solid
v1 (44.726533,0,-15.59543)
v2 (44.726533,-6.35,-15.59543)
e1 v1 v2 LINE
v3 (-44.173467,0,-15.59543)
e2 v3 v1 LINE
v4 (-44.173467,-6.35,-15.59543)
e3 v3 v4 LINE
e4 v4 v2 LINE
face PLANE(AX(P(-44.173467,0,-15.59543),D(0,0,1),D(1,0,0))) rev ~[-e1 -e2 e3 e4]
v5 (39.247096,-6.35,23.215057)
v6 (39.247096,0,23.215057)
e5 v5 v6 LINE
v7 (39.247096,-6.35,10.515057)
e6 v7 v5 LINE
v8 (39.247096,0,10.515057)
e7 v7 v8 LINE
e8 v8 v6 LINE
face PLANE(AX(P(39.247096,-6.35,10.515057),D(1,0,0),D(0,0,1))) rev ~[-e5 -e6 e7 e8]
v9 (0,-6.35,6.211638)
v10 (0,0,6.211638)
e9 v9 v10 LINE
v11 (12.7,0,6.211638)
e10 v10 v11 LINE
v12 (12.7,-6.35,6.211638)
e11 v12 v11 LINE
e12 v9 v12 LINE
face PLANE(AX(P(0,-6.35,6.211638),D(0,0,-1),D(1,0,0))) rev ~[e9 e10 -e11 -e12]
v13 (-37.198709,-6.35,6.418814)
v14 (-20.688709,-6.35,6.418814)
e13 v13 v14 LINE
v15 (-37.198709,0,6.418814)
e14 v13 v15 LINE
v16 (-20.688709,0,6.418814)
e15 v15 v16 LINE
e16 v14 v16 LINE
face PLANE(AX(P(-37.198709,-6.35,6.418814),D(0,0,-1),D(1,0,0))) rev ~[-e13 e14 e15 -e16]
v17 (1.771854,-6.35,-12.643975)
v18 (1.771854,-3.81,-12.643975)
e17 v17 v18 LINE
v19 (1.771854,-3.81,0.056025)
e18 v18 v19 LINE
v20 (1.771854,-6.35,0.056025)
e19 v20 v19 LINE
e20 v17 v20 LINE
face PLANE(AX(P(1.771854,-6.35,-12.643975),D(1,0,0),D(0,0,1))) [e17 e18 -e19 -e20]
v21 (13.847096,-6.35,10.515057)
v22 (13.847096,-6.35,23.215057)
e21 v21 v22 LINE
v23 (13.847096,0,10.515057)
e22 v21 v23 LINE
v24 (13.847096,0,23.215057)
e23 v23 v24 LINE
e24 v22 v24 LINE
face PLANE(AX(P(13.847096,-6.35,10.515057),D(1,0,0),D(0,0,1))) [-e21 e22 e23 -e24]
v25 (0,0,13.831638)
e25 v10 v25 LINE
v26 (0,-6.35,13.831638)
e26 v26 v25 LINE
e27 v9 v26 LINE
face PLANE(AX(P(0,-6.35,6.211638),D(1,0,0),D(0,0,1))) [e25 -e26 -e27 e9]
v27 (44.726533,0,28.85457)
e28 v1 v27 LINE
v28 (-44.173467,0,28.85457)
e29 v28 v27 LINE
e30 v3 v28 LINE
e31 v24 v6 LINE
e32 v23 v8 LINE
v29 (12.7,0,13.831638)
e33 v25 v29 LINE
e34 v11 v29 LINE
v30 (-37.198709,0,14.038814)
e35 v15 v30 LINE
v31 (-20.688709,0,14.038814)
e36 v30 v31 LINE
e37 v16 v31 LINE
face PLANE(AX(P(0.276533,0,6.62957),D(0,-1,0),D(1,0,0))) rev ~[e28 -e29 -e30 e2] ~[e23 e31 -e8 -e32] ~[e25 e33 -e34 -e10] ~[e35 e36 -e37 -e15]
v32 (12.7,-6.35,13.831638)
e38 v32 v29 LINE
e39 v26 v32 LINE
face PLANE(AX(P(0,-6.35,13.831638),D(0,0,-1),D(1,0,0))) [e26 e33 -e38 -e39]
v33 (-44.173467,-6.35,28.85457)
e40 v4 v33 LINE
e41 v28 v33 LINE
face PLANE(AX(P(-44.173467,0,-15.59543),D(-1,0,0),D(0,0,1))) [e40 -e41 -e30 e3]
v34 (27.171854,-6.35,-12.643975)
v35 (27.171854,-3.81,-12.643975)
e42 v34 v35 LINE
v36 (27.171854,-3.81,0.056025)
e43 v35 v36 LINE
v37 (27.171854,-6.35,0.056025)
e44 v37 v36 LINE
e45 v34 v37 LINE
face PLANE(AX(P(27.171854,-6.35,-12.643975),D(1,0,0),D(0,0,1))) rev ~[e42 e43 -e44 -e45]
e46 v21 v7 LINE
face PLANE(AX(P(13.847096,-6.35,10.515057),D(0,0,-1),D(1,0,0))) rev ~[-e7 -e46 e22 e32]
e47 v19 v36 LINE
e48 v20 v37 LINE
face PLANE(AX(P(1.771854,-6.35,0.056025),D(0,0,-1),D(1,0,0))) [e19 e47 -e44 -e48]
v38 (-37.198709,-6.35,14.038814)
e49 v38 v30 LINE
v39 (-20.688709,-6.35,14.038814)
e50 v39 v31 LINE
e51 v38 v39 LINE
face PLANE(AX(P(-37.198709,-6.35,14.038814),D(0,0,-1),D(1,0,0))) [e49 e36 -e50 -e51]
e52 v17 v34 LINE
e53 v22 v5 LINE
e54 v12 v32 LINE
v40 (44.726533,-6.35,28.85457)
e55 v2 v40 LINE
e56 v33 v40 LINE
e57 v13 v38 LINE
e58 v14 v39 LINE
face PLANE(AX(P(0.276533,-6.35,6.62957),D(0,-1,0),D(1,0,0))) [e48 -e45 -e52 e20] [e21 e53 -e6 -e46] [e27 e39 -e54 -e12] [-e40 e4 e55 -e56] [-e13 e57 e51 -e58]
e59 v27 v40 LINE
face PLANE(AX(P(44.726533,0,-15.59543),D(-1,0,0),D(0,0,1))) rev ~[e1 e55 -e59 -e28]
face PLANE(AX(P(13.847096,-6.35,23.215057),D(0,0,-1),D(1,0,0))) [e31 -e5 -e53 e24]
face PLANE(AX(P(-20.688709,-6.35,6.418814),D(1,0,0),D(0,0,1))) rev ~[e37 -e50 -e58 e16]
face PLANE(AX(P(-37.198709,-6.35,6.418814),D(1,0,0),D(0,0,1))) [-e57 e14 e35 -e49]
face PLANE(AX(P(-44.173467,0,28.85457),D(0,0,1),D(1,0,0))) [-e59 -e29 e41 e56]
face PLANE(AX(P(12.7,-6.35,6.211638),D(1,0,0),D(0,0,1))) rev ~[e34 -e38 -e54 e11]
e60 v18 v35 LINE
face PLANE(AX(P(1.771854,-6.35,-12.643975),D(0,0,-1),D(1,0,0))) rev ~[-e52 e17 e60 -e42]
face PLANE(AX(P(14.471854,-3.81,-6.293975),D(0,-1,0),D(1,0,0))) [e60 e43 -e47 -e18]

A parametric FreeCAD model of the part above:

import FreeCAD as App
import Part
import Sketcher
Q = App.Units.Quantity


def add_polygon(sketch, points):
    """Adds a closed chain of lines whose ends are joined by coincident constraints."""
    first, n = sketch.GeometryCount, len(points)
    for a, b in zip(points, points[1:] + points[:1]):
        sketch.addGeometry(Part.LineSegment(App.Vector(*a, 0), App.Vector(*b, 0)), False)
    for i in range(n):
        sketch.addConstraint(Sketcher.Constraint("Coincident", first + i, 2, first + (i + 1) % n, 1))

doc = App.newDocument("Part")
body = doc.addObject("PartDesign::Body", "Body")

sketch1 = doc.addObject("Sketcher::SketchObject", "Sketch")
body.addObject(sketch1)
sketch1.AttachmentSupport = (doc.XZ_Plane, [""])
sketch1.MapMode = "FlatFace"
add_polygon(sketch1, [(-44, 29), (-44, -16), (45, -16), (45, 29)])
sketch1.addConstraint(Sketcher.Constraint("Vertical", 0))
sketch1.addConstraint(Sketcher.Constraint("Horizontal", 1))
sketch1.addConstraint(Sketcher.Constraint("Vertical", 2))
sketch1.addConstraint(Sketcher.Constraint("Horizontal", 3))
sketch1.addConstraint(Sketcher.Constraint("DistanceX", 1, 1, 1, 2, Q("3.5 in")))
sketch1.addConstraint(Sketcher.Constraint("DistanceY", 0, 2, 0, 1, Q("1.75 in")))
sketch1.addConstraint(Sketcher.Constraint("DistanceY", 0, 2, -1, 1, 15.59543))
sketch1.addConstraint(Sketcher.Constraint("DistanceX", 0, 2, -1, 1, 44.173467))
pad1 = doc.addObject("PartDesign::Pad", "Pad")
body.addObject(pad1)
pad1.Profile = sketch1
pad1.Length = Q("0.25 in")

sketch2 = doc.addObject("Sketcher::SketchObject", "Sketch001")
body.addObject(sketch2)
sketch2.AttachmentSupport = (doc.XZ_Plane, [""])
sketch2.MapMode = "FlatFace"
sketch2.AttachmentOffset = App.Placement(App.Vector(0, 0, 0.25 * 25.4), App.Rotation())
add_polygon(sketch2, [(14, 23), (14, 11), (39, 11), (39, 23)])
sketch2.addConstraint(Sketcher.Constraint("Vertical", 0))
sketch2.addConstraint(Sketcher.Constraint("Horizontal", 1))
sketch2.addConstraint(Sketcher.Constraint("Vertical", 2))
sketch2.addConstraint(Sketcher.Constraint("Horizontal", 3))
sketch2.addConstraint(Sketcher.Constraint("DistanceX", 1, 1, 1, 2, Q("1 in")))
sketch2.addConstraint(Sketcher.Constraint("DistanceY", 0, 2, 0, 1, Q("0.5 in")))
sketch2.addConstraint(Sketcher.Constraint("DistanceX", -1, 1, 0, 2, 13.847096))
sketch2.addConstraint(Sketcher.Constraint("DistanceY", -1, 1, 0, 2, 10.515057))
pocket1 = doc.addObject("PartDesign::Pocket", "Pocket")
body.addObject(pocket1)
pocket1.Profile = sketch2
pocket1.Type = "ThroughAll"

sketch3 = doc.addObject("Sketcher::SketchObject", "Sketch002")
body.addObject(sketch3)
sketch3.AttachmentSupport = (doc.XZ_Plane, [""])
sketch3.MapMode = "FlatFace"
sketch3.AttachmentOffset = App.Placement(App.Vector(0, 0, 0.25 * 25.4), App.Rotation())
add_polygon(sketch3, [(0, 14), (0, 6), (13, 6), (13, 14)])
sketch3.addConstraint(Sketcher.Constraint("Vertical", 0))
sketch3.addConstraint(Sketcher.Constraint("Horizontal", 1))
sketch3.addConstraint(Sketcher.Constraint("Vertical", 2))
sketch3.addConstraint(Sketcher.Constraint("Horizontal", 3))
sketch3.addConstraint(Sketcher.Constraint("PointOnObject", 0, 2, -2))
sketch3.addConstraint(Sketcher.Constraint("DistanceX", 1, 1, 1, 2, Q("0.5 in")))
sketch3.addConstraint(Sketcher.Constraint("DistanceY", 0, 2, 0, 1, Q("0.3 in")))
sketch3.addConstraint(Sketcher.Constraint("DistanceY", -1, 1, 0, 2, 6.211638))
pocket2 = doc.addObject("PartDesign::Pocket", "Pocket001")
body.addObject(pocket2)
pocket2.Profile = sketch3
pocket2.Type = "ThroughAll"

sketch4 = doc.addObject("Sketcher::SketchObject", "Sketch003")
body.addObject(sketch4)
sketch4.AttachmentSupport = (doc.XZ_Plane, [""])
sketch4.MapMode = "FlatFace"
sketch4.AttachmentOffset = App.Placement(App.Vector(0, 0, 0.25 * 25.4), App.Rotation())
add_polygon(sketch4, [(2, 0), (2, -13), (27, -13), (27, 0)])
sketch4.addConstraint(Sketcher.Constraint("Vertical", 0))
sketch4.addConstraint(Sketcher.Constraint("Horizontal", 1))
sketch4.addConstraint(Sketcher.Constraint("Vertical", 2))
sketch4.addConstraint(Sketcher.Constraint("Horizontal", 3))
sketch4.addConstraint(Sketcher.Constraint("DistanceX", 1, 1, 1, 2, Q("1 in")))
sketch4.addConstraint(Sketcher.Constraint("DistanceY", 0, 2, 0, 1, Q("0.5 in")))
sketch4.addConstraint(Sketcher.Constraint("DistanceX", -1, 1, 0, 2, 1.771854))
sketch4.addConstraint(Sketcher.Constraint("DistanceY", 0, 2, -1, 1, 12.643975))
pocket3 = doc.addObject("PartDesign::Pocket", "Pocket002")
body.addObject(pocket3)
pocket3.Profile = sketch4
pocket3.Length = Q("0.1 in")

sketch5 = doc.addObject("Sketcher::SketchObject", "Sketch004")
body.addObject(sketch5)
sketch5.AttachmentSupport = (doc.XZ_Plane, [""])
sketch5.MapMode = "FlatFace"
sketch5.AttachmentOffset = App.Placement(App.Vector(0, 0, 0.25 * 25.4), App.Rotation())
add_polygon(sketch5, [(-37, 14), (-37, 6), (-21, 6), (-21, 14)])
sketch5.addConstraint(Sketcher.Constraint("Vertical", 0))
sketch5.addConstraint(Sketcher.Constraint("Horizontal", 1))
sketch5.addConstraint(Sketcher.Constraint("Vertical", 2))
sketch5.addConstraint(Sketcher.Constraint("Horizontal", 3))
sketch5.addConstraint(Sketcher.Constraint("DistanceY", 0, 2, 0, 1, Q("0.3 in")))
sketch5.addConstraint(Sketcher.Constraint("DistanceX", 1, 1, 1, 2, Q("0.65 in")))
sketch5.addConstraint(Sketcher.Constraint("DistanceX", 0, 2, -1, 1, 37.198709))
sketch5.addConstraint(Sketcher.Constraint("DistanceY", -1, 1, 0, 2, 6.418814))
pocket4 = doc.addObject("PartDesign::Pocket", "Pocket003")
body.addObject(pocket4)
pocket4.Profile = sketch5
pocket4.Type = "ThroughAll"

doc.recompute()
